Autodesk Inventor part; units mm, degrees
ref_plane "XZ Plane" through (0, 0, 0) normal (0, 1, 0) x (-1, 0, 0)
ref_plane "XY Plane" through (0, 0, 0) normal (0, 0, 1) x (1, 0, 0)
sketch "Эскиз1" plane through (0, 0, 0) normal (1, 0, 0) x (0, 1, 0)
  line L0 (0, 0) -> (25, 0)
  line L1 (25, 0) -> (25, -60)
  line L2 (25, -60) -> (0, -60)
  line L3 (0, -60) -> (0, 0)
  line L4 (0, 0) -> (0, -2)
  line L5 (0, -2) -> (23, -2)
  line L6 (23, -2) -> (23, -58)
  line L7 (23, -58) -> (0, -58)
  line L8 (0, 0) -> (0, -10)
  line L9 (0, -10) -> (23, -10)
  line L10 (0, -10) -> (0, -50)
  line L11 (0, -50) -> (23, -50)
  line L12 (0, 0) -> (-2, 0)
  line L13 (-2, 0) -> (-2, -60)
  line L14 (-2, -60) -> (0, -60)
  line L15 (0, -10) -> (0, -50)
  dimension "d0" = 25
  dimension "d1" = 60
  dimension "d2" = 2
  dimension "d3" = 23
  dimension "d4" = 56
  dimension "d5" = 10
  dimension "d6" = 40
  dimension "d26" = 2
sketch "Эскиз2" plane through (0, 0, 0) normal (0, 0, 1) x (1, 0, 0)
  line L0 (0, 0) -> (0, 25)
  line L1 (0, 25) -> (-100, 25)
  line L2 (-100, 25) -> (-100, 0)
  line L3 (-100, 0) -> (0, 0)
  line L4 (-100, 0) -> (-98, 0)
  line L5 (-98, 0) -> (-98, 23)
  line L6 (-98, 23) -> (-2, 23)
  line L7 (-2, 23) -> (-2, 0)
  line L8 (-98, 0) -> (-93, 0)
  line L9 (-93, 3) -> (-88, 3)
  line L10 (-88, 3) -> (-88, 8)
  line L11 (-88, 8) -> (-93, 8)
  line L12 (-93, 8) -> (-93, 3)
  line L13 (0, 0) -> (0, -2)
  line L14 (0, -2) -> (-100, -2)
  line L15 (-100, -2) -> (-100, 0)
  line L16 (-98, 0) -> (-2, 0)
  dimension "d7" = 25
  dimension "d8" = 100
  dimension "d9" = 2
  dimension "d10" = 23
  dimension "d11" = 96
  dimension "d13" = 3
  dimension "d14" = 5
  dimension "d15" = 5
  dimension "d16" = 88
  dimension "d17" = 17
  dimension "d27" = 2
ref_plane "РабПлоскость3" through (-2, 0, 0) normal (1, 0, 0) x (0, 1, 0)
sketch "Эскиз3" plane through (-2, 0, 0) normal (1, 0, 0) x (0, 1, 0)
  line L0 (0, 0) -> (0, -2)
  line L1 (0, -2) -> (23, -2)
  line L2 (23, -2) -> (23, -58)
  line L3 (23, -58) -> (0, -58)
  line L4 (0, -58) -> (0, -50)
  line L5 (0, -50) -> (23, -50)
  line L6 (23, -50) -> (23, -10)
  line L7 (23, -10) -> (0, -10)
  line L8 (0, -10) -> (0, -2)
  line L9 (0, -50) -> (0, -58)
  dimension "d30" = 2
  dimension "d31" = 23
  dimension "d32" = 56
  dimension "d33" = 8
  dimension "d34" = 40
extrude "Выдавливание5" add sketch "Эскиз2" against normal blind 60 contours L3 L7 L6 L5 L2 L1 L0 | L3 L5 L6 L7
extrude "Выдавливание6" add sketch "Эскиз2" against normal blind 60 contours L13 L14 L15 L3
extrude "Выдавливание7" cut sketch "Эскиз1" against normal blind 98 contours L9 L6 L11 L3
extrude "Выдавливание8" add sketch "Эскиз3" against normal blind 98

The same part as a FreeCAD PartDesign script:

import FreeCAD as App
import Part
import Sketcher
from FreeCAD import Vector

doc = App.newDocument("Part")
params = doc.addObject("Spreadsheet::Sheet", "Params")
for row, (alias, value) in enumerate([
    ("sketch1_width", "100 mm"),
    ("sketch1_width2", "5 mm"),
    ("sketch1_height", "25 mm"),
    ("pad1_length", "60 mm"),
    ("sketch2_width", "100 mm"),
    ("sketch2_height", "2 mm"),
    ("pad2_length", "60 mm"),
    ("sketch3_width", "23 mm"),
    ("sketch3_height", "40 mm"),
    ("pocket1_length", "98 mm"),
    ("sketch4_width", "23 mm"),
    ("sketch4_height", "8 mm"),
    ("pad3_length", "98 mm"),
], start=1):
    params.set(f"A{row}", alias)
    params.set(f"B{row}", "=" + value)
    params.setAlias(f"B{row}", alias)

body = doc.addObject("PartDesign::Body", "Body")

sketch1 = doc.addObject("Sketcher::SketchObject", "Sketch")
body.addObject(sketch1)
sketch1.AttachmentSupport = (doc.XY_Plane, [""])
sketch1.MapMode = "FlatFace"
sketch1.addGeometry([
    Part.LineSegment(Vector(0, 0, 0), Vector(0, 25, 0)),
    Part.LineSegment(Vector(0, 25, 0), Vector(-100, 25, 0)),
    Part.LineSegment(Vector(-100, 25, 0), Vector(-100, 0, 0)),
    Part.LineSegment(Vector(-100, 0, 0), Vector(0, 0, 0)),
    Part.LineSegment(Vector(-88, 8, 0), Vector(-88, 3, 0)),
    Part.LineSegment(Vector(-88, 3, 0), Vector(-93, 3, 0)),
    Part.LineSegment(Vector(-93, 3, 0), Vector(-93, 8, 0)),
    Part.LineSegment(Vector(-93, 8, 0), Vector(-88, 8, 0)),
], False)
sketch1.addConstraint([
    Sketcher.Constraint("Coincident", 0, 2, 1, 1),
    Sketcher.Constraint("Coincident", 1, 2, 2, 1),
    Sketcher.Constraint("Coincident", 2, 2, 3, 1),
    Sketcher.Constraint("Coincident", 3, 2, 0, 1),
    Sketcher.Constraint("Coincident", 4, 2, 5, 1),
    Sketcher.Constraint("Coincident", 5, 2, 6, 1),
    Sketcher.Constraint("Coincident", 6, 2, 7, 1),
    Sketcher.Constraint("Coincident", 7, 2, 4, 1),
    Sketcher.Constraint("Vertical", 0),
    Sketcher.Constraint("Horizontal", 1),
    Sketcher.Constraint("Vertical", 2),
    Sketcher.Constraint("Horizontal", 3),
    Sketcher.Constraint("Vertical", 4),
    Sketcher.Constraint("Horizontal", 5),
    Sketcher.Constraint("Vertical", 6),
    Sketcher.Constraint("Horizontal", 7),
    Sketcher.Constraint("Coincident", 3, 2, -1, 1),
    Sketcher.Constraint("Equal", 7, 4),
    Sketcher.Constraint("DistanceX", 1, 2, 1, 1, 100.0),
    Sketcher.Constraint("DistanceX", 5, 2, 5, 1, 5.0),
    Sketcher.Constraint("DistanceY", 0, 1, 0, 2, 25.0),
    Sketcher.Constraint("DistanceX", 4, 2, -1, 1, 88.0),
    Sketcher.Constraint("DistanceY", -1, 1, 4, 2, 3.0),
])
sketch1.setExpression("Constraints[18]", "Params.sketch1_width")
sketch1.setExpression("Constraints[19]", "Params.sketch1_width2")
sketch1.setExpression("Constraints[20]", "Params.sketch1_height")
pad1 = doc.addObject("PartDesign::Pad", "Pad")
body.addObject(pad1)
pad1.Profile = sketch1
pad1.setExpression("Length", "Params.pad1_length")
pad1.Reversed = True

sketch2 = doc.addObject("Sketcher::SketchObject", "Sketch001")
body.addObject(sketch2)
sketch2.AttachmentSupport = (doc.XY_Plane, [""])
sketch2.MapMode = "FlatFace"
sketch2.addGeometry([
    Part.LineSegment(Vector(0, -2, 0), Vector(0, 0, 0)),
    Part.LineSegment(Vector(0, 0, 0), Vector(-100, 0, 0)),
    Part.LineSegment(Vector(-100, 0, 0), Vector(-100, -2, 0)),
    Part.LineSegment(Vector(-100, -2, 0), Vector(0, -2, 0)),
], False)
sketch2.addConstraint([
    Sketcher.Constraint("Coincident", 0, 2, 1, 1),
    Sketcher.Constraint("Coincident", 1, 2, 2, 1),
    Sketcher.Constraint("Coincident", 2, 2, 3, 1),
    Sketcher.Constraint("Coincident", 3, 2, 0, 1),
    Sketcher.Constraint("Vertical", 0),
    Sketcher.Constraint("Horizontal", 1),
    Sketcher.Constraint("Vertical", 2),
    Sketcher.Constraint("Horizontal", 3),
    Sketcher.Constraint("Coincident", 0, 2, -1, 1),
    Sketcher.Constraint("DistanceX", 1, 2, 1, 1, 100.0),
    Sketcher.Constraint("DistanceY", 0, 1, 0, 2, 2.0),
])
sketch2.setExpression("Constraints[9]", "Params.sketch2_width")
sketch2.setExpression("Constraints[10]", "Params.sketch2_height")
pad2 = doc.addObject("PartDesign::Pad", "Pad001")
body.addObject(pad2)
pad2.Profile = sketch2
pad2.setExpression("Length", "Params.pad2_length")
pad2.Reversed = True

sketch3 = doc.addObject("Sketcher::SketchObject", "Sketch002")
body.addObject(sketch3)
sketch3.AttachmentSupport = (doc.YZ_Plane, [""])
sketch3.MapMode = "FlatFace"
sketch3.addGeometry([
    Part.LineSegment(Vector(23, -10, 0), Vector(0, -10, 0)),
    Part.LineSegment(Vector(0, -10, 0), Vector(0, -50, 0)),
    Part.LineSegment(Vector(0, -50, 0), Vector(23, -50, 0)),
    Part.LineSegment(Vector(23, -50, 0), Vector(23, -10, 0)),
], False)
sketch3.addConstraint([
    Sketcher.Constraint("Coincident", 0, 2, 1, 1),
    Sketcher.Constraint("Coincident", 1, 2, 2, 1),
    Sketcher.Constraint("Coincident", 2, 2, 3, 1),
    Sketcher.Constraint("Coincident", 3, 2, 0, 1),
    Sketcher.Constraint("Horizontal", 0),
    Sketcher.Constraint("Vertical", 1),
    Sketcher.Constraint("Horizontal", 2),
    Sketcher.Constraint("Vertical", 3),
    Sketcher.Constraint("PointOnObject", 0, 2, -2),
    Sketcher.Constraint("DistanceX", 0, 2, 0, 1, 23.0),
    Sketcher.Constraint("DistanceY", 1, 2, 1, 1, 40.0),
    Sketcher.Constraint("DistanceY", 0, 2, -1, 1, 10.0),
])
sketch3.setExpression("Constraints[9]", "Params.sketch3_width")
sketch3.setExpression("Constraints[10]", "Params.sketch3_height")
pocket1 = doc.addObject("PartDesign::Pocket", "Pocket")
body.addObject(pocket1)
pocket1.Profile = sketch3
pocket1.setExpression("Length", "Params.pocket1_length")

sketch4 = doc.addObject("Sketcher::SketchObject", "Sketch003")
body.addObject(sketch4)
sketch4.AttachmentSupport = (doc.YZ_Plane, [""])
sketch4.MapMode = "FlatFace"
sketch4.AttachmentOffset = App.Placement(Vector(0, 0, -2), App.Rotation())
sketch4.addGeometry([
    Part.LineSegment(Vector(23, -58, 0), Vector(23, -50, 0)),
    Part.LineSegment(Vector(23, -50, 0), Vector(0, -50, 0)),
    Part.LineSegment(Vector(0, -50, 0), Vector(0, -58, 0)),
    Part.LineSegment(Vector(0, -58, 0), Vector(23, -58, 0)),
    Part.LineSegment(Vector(23, -2, 0), Vector(0, -2, 0)),
    Part.LineSegment(Vector(0, -2, 0), Vector(0, -10, 0)),
    Part.LineSegment(Vector(0, -10, 0), Vector(23, -10, 0)),
    Part.LineSegment(Vector(23, -10, 0), Vector(23, -2, 0)),
], False)
sketch4.addConstraint([
    Sketcher.Constraint("Coincident", 0, 2, 1, 1),
    Sketcher.Constraint("Coincident", 1, 2, 2, 1),
    Sketcher.Constraint("Coincident", 2, 2, 3, 1),
    Sketcher.Constraint("Coincident", 3, 2, 0, 1),
    Sketcher.Constraint("Coincident", 4, 2, 5, 1),
    Sketcher.Constraint("Coincident", 5, 2, 6, 1),
    Sketcher.Constraint("Coincident", 6, 2, 7, 1),
    Sketcher.Constraint("Coincident", 7, 2, 4, 1),
    Sketcher.Constraint("Vertical", 0),
    Sketcher.Constraint("Horizontal", 1),
    Sketcher.Constraint("Vertical", 2),
    Sketcher.Constraint("Horizontal", 3),
    Sketcher.Constraint("Horizontal", 4),
    Sketcher.Constraint("Vertical", 5),
    Sketcher.Constraint("Horizontal", 6),
    Sketcher.Constraint("Vertical", 7),
    Sketcher.Constraint("PointOnObject", 1, 2, -2),
    Sketcher.Constraint("PointOnObject", 4, 2, -2),
    Sketcher.Constraint("Vertical", 3, 2, 6, 2),
    Sketcher.Constraint("Equal", 2, 5),
    Sketcher.Constraint("DistanceX", 1, 2, 1, 1, 23.0),
    Sketcher.Constraint("DistanceY", 0, 1, 0, 2, 8.0),
    Sketcher.Constraint("DistanceY", 4, 2, -1, 1, 2.0),
    Sketcher.Constraint("DistanceY", 2, 2, 4, 2, 56.0),
])
sketch4.setExpression("Constraints[20]", "Params.sketch4_width")
sketch4.setExpression("Constraints[21]", "Params.sketch4_height")
pad3 = doc.addObject("PartDesign::Pad", "Pad002")
body.addObject(pad3)
pad3.Profile = sketch4
pad3.setExpression("Length", "Params.pad3_length")
pad3.Reversed = True

doc.recompute()
